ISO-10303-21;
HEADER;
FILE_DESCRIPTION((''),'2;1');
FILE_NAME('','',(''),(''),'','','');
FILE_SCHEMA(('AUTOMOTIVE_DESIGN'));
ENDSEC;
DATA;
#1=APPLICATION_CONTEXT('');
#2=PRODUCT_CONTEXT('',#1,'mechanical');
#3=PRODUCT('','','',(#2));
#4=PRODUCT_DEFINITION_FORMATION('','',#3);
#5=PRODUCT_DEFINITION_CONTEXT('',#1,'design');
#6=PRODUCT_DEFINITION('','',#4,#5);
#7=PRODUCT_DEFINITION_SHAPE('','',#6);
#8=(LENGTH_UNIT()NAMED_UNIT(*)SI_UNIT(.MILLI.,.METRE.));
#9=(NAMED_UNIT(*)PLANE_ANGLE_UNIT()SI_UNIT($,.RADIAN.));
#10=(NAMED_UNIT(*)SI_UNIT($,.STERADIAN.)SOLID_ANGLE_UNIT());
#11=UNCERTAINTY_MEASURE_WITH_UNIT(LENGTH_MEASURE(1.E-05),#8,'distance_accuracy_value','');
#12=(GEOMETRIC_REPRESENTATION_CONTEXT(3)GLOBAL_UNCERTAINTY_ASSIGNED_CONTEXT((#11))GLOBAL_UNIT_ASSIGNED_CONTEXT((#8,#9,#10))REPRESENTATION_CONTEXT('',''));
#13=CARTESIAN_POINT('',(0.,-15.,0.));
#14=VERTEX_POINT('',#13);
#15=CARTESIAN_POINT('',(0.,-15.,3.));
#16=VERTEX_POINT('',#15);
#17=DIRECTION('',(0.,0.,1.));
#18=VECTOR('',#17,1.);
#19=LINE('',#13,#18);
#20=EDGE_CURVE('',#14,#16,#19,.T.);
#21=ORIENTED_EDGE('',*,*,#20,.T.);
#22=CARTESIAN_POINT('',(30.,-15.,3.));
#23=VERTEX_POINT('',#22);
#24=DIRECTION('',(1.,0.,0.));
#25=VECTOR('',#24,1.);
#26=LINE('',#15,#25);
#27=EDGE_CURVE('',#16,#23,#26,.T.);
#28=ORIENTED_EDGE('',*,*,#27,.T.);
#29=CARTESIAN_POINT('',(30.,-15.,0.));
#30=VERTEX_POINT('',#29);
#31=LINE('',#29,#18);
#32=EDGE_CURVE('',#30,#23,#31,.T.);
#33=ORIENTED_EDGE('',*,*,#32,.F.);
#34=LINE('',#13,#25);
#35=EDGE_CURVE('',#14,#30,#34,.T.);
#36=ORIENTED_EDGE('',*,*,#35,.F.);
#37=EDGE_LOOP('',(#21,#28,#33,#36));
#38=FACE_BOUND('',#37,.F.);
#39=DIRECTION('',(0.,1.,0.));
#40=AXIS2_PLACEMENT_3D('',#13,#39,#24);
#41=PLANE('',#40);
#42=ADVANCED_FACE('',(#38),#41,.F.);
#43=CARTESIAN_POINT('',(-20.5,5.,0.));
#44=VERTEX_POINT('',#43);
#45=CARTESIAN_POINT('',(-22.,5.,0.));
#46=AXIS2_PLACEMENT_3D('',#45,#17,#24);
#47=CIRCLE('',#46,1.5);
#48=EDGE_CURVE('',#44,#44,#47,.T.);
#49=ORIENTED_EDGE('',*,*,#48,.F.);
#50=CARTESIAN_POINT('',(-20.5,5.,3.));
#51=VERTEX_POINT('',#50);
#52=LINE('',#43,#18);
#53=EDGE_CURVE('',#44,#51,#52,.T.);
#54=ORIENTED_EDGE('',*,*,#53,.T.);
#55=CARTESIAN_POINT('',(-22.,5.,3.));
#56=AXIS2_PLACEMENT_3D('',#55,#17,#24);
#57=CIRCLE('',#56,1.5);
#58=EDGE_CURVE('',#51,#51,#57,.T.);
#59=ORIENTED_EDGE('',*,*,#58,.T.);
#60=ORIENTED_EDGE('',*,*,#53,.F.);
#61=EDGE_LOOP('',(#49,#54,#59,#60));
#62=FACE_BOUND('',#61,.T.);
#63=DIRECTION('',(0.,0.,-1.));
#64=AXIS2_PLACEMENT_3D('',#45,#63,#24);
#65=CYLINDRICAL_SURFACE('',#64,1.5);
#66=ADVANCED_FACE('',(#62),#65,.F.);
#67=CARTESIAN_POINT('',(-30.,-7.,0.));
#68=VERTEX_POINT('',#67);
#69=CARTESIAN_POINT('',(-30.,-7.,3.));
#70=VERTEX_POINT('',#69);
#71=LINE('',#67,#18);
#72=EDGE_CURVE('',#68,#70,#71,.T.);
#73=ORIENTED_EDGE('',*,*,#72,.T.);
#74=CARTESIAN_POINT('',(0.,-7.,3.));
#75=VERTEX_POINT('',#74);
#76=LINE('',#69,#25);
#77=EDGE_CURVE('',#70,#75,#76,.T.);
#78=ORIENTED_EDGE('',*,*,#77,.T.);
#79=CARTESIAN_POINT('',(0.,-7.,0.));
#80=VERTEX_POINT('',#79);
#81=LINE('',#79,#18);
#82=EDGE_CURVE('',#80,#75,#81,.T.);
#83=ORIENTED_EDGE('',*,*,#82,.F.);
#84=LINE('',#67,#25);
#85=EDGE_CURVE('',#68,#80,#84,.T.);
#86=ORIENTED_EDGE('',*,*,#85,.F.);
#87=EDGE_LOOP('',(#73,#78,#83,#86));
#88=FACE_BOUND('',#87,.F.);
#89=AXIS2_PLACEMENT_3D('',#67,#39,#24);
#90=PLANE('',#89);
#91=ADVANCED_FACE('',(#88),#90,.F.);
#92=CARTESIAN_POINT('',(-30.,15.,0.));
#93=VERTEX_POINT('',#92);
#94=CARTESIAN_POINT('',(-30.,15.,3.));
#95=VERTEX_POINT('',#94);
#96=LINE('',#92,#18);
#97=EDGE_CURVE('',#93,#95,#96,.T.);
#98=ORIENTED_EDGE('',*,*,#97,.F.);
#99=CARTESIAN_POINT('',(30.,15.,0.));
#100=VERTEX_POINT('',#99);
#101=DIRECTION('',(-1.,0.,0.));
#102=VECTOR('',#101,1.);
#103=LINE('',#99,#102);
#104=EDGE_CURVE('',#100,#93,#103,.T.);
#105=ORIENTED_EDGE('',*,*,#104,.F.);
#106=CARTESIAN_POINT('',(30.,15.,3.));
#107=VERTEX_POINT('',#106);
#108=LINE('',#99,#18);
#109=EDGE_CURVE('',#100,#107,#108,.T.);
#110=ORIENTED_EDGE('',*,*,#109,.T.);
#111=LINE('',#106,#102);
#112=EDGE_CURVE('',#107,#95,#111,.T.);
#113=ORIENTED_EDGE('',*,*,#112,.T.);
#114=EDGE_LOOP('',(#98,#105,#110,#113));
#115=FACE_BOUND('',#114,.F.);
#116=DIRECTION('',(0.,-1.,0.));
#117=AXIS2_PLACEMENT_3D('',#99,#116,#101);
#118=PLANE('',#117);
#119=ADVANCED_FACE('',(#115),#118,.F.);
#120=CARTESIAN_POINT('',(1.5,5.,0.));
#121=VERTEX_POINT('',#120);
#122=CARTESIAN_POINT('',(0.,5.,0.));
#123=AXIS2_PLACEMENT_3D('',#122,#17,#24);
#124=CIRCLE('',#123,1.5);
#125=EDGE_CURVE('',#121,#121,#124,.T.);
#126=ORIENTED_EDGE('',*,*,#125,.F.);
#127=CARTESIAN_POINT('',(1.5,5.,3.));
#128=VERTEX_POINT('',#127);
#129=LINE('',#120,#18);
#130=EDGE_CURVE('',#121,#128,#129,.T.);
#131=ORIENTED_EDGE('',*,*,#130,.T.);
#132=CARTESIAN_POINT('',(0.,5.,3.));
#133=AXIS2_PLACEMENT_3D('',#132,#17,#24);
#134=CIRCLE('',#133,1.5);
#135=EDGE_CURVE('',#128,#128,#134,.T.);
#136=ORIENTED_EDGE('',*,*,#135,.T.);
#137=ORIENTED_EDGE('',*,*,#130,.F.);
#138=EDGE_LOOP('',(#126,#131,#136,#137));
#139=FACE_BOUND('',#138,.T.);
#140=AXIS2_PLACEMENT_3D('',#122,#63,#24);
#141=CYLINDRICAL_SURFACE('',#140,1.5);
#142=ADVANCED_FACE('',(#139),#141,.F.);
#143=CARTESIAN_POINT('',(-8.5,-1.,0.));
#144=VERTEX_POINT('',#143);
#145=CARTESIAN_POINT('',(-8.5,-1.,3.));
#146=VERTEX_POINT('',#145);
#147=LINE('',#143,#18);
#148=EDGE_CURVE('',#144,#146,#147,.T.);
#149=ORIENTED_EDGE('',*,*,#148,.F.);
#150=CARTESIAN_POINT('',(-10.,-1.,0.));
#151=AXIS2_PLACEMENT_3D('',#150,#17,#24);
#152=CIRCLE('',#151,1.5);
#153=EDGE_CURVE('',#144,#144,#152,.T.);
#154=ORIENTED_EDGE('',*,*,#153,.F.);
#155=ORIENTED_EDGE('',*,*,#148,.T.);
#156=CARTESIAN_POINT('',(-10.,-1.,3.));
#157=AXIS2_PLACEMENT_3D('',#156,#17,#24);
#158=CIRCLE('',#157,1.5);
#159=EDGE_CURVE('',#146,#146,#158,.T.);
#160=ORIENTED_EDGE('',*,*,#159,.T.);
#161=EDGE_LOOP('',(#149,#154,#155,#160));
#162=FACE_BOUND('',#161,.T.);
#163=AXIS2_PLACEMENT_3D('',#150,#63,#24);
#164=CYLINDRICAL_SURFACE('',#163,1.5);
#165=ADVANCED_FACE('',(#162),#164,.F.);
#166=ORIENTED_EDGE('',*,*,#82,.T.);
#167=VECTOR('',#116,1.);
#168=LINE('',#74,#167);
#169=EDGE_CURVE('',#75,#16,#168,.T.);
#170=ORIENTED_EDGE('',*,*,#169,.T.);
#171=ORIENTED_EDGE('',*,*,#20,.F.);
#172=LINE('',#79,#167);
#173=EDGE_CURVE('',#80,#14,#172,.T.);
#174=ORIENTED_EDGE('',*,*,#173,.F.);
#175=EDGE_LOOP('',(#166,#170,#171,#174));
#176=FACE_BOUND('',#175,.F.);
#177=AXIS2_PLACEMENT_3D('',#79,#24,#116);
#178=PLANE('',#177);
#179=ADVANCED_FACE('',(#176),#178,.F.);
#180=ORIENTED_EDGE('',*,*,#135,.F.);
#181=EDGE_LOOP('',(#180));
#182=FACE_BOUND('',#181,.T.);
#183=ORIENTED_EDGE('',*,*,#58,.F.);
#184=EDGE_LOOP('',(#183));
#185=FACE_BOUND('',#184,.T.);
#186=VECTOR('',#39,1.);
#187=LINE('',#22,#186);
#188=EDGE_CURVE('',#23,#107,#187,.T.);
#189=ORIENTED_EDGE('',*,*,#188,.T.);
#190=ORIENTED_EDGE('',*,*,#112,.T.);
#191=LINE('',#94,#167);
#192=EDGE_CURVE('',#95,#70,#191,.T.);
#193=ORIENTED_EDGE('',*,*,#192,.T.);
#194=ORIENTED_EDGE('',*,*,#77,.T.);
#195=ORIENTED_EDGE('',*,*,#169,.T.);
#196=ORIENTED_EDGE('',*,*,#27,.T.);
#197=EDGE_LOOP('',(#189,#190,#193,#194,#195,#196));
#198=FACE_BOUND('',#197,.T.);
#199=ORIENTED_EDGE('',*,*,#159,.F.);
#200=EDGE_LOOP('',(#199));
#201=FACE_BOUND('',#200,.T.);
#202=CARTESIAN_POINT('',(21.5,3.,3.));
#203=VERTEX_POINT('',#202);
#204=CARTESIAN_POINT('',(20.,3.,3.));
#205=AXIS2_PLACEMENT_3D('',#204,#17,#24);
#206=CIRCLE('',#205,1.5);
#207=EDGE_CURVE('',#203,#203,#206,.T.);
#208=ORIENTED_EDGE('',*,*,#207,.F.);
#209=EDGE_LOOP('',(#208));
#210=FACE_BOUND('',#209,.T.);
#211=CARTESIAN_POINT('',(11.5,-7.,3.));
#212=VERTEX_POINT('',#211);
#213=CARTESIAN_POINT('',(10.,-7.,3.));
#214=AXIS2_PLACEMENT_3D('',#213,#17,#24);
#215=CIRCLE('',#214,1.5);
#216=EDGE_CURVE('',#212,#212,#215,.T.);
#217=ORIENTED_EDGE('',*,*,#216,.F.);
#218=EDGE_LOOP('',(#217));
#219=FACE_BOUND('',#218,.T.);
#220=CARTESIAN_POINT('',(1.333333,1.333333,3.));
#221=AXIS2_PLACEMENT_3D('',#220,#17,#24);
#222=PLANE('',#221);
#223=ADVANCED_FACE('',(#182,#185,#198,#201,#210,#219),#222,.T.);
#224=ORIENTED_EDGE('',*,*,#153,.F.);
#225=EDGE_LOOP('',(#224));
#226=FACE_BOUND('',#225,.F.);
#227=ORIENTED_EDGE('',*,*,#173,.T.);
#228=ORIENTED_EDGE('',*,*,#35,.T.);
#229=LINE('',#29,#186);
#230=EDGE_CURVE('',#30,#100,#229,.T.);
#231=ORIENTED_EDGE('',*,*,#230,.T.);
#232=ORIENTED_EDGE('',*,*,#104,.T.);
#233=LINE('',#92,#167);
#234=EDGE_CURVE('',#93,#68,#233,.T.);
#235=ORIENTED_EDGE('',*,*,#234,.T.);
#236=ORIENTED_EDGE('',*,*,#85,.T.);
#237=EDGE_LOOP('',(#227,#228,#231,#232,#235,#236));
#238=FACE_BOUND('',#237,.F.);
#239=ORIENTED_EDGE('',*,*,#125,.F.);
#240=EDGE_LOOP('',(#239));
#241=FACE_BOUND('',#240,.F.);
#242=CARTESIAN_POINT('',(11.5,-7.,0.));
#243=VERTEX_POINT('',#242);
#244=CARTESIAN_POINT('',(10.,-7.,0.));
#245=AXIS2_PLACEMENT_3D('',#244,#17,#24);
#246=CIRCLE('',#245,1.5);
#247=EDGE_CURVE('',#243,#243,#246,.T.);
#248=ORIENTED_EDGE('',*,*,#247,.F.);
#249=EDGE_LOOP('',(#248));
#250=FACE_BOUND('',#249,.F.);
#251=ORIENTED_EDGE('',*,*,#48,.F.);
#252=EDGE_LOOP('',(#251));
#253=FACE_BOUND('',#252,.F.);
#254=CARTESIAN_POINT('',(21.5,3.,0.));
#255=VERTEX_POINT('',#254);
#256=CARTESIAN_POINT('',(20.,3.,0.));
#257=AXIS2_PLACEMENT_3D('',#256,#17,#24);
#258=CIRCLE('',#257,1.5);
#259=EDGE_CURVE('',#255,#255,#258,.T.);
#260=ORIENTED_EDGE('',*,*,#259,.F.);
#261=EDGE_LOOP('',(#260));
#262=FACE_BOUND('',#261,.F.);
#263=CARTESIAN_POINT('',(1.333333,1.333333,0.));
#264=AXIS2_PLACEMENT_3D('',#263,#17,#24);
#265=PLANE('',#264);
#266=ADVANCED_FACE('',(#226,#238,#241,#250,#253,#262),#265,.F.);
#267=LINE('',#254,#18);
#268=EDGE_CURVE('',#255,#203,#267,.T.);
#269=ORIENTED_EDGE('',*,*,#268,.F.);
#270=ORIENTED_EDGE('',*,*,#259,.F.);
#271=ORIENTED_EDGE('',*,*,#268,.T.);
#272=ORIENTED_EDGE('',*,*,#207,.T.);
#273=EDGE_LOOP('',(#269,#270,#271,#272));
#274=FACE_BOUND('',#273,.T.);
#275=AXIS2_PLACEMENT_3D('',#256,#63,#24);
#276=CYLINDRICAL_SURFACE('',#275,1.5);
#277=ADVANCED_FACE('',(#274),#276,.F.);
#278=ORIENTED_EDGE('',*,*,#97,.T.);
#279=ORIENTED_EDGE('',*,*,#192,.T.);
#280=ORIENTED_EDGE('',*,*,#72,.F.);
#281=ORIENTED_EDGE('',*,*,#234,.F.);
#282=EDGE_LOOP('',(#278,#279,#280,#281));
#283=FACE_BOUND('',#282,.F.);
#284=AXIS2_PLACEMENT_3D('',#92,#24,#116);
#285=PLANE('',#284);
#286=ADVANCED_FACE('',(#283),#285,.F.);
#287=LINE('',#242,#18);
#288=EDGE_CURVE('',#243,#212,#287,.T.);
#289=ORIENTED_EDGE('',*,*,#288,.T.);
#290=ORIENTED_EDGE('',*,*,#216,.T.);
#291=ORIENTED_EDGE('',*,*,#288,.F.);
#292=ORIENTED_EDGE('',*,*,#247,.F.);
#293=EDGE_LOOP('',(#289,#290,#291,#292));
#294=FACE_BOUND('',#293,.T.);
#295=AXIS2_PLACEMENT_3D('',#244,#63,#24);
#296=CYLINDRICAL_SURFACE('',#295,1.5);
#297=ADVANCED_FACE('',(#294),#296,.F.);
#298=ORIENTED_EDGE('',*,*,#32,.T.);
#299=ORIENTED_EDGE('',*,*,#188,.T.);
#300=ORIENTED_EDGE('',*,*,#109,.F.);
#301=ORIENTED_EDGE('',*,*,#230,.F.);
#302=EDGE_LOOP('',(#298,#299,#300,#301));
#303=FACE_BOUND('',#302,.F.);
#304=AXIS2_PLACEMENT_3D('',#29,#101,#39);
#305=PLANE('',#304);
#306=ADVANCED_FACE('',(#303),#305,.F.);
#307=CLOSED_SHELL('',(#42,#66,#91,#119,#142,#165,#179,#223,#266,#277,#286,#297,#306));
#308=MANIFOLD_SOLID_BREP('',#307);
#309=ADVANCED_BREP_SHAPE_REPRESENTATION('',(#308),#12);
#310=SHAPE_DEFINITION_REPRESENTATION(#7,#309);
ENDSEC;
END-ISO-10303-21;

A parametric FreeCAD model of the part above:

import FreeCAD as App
import Part
import Sketcher
Q = App.Units.Quantity


def add_polygon(sketch, points):
    """Adds a closed chain of lines whose ends are joined by coincident constraints."""
    first, n = sketch.GeometryCount, len(points)
    for a, b in zip(points, points[1:] + points[:1]):
        sketch.addGeometry(Part.LineSegment(App.Vector(*a, 0), App.Vector(*b, 0)), False)
    for i in range(n):
        sketch.addConstraint(Sketcher.Constraint("Coincident", first + i, 2, first + (i + 1) % n, 1))

doc = App.newDocument("Part")
params = doc.addObject("Spreadsheet::Sheet", "Params")
for row, (alias, value) in enumerate([
    ("sketch1_diameter", "3 mm"),
    ("sketch1_width", "60 mm"),
    ("sketch1_height", "22 mm"),
    ("pad1_length", "3 mm"),
], start=1):
    params.set(f"A{row}", alias)
    params.set(f"B{row}", "=" + value)
    params.setAlias(f"B{row}", alias)

body = doc.addObject("PartDesign::Body", "Body")

sketch1 = doc.addObject("Sketcher::SketchObject", "Sketch")
body.addObject(sketch1)
sketch1.AttachmentSupport = (doc.XY_Plane, [""])
sketch1.MapMode = "FlatFace"
add_polygon(sketch1, [(30, 15), (-30, 15), (-30, -7), (0, -7), (0, -15), (30, -15)])
sketch1.addGeometry(Part.Circle(App.Vector(10, -7, 0), App.Vector(0, 0, 1), 1.5), False)
sketch1.addGeometry(Part.Circle(App.Vector(-10, -1, 0), App.Vector(0, 0, 1), 1.5), False)
sketch1.addGeometry(Part.Circle(App.Vector(-22, 5, 0), App.Vector(0, 0, 1), 1.5), False)
sketch1.addGeometry(Part.Circle(App.Vector(0, 5, 0), App.Vector(0, 0, 1), 1.5), False)
sketch1.addGeometry(Part.Circle(App.Vector(20, 3, 0), App.Vector(0, 0, 1), 1.5), False)
sketch1.addConstraint(Sketcher.Constraint("Horizontal", 0))
sketch1.addConstraint(Sketcher.Constraint("Vertical", 1))
sketch1.addConstraint(Sketcher.Constraint("Horizontal", 2))
sketch1.addConstraint(Sketcher.Constraint("Vertical", 3))
sketch1.addConstraint(Sketcher.Constraint("Horizontal", 4))
sketch1.addConstraint(Sketcher.Constraint("Vertical", 5))
sketch1.addConstraint(Sketcher.Constraint("Equal", 6, 7))
sketch1.addConstraint(Sketcher.Constraint("Equal", 7, 8))
sketch1.addConstraint(Sketcher.Constraint("Equal", 8, 9))
sketch1.addConstraint(Sketcher.Constraint("Equal", 9, 10))
sketch1.addConstraint(Sketcher.Constraint("Symmetric", 0, 2, 4, 2, -1, 1))
sketch1.addConstraint(Sketcher.Constraint("PointOnObject", 9, 3, -2))
sketch1.addConstraint(Sketcher.Constraint("PointOnObject", 2, 2, -2))
sketch1.addConstraint(Sketcher.Constraint("Horizontal", 8, 3, 9, 3))
sketch1.addConstraint(Sketcher.Constraint("Horizontal", 6, 3, 1, 2))
sketch1.addConstraint(Sketcher.Constraint("Equal", 4, 5))
sketch1.addConstraint(Sketcher.Constraint("Diameter", 6, Q("3 mm")))
sketch1.addConstraint(Sketcher.Constraint("DistanceX", 0, 2, 0, 1, Q("60 mm")))
sketch1.addConstraint(Sketcher.Constraint("DistanceY", 1, 2, 1, 1, Q("22 mm")))
sketch1.addConstraint(Sketcher.Constraint("DistanceX", -1, 1, 6, 3, Q("10 mm")))
sketch1.addConstraint(Sketcher.Constraint("DistanceX", 7, 3, -1, 1, Q("10 mm")))
sketch1.addConstraint(Sketcher.Constraint("DistanceY", 7, 3, -1, 1, Q("1 mm")))
sketch1.addConstraint(Sketcher.Constraint("DistanceX", 8, 3, -1, 1, Q("22 mm")))
sketch1.addConstraint(Sketcher.Constraint("DistanceY", -1, 1, 8, 3, Q("5 mm")))
sketch1.addConstraint(Sketcher.Constraint("DistanceX", -1, 1, 10, 3, Q("20 mm")))
sketch1.addConstraint(Sketcher.Constraint("DistanceY", -1, 1, 10, 3, Q("3 mm")))
sketch1.setExpression("Constraints[22]", "Params.sketch1_diameter")
sketch1.setExpression("Constraints[23]", "Params.sketch1_width")
sketch1.setExpression("Constraints[24]", "Params.sketch1_height")
pad1 = doc.addObject("PartDesign::Pad", "Pad")
body.addObject(pad1)
pad1.Profile = sketch1
pad1.setExpression("Length", "Params.pad1_length")

doc.recompute()
